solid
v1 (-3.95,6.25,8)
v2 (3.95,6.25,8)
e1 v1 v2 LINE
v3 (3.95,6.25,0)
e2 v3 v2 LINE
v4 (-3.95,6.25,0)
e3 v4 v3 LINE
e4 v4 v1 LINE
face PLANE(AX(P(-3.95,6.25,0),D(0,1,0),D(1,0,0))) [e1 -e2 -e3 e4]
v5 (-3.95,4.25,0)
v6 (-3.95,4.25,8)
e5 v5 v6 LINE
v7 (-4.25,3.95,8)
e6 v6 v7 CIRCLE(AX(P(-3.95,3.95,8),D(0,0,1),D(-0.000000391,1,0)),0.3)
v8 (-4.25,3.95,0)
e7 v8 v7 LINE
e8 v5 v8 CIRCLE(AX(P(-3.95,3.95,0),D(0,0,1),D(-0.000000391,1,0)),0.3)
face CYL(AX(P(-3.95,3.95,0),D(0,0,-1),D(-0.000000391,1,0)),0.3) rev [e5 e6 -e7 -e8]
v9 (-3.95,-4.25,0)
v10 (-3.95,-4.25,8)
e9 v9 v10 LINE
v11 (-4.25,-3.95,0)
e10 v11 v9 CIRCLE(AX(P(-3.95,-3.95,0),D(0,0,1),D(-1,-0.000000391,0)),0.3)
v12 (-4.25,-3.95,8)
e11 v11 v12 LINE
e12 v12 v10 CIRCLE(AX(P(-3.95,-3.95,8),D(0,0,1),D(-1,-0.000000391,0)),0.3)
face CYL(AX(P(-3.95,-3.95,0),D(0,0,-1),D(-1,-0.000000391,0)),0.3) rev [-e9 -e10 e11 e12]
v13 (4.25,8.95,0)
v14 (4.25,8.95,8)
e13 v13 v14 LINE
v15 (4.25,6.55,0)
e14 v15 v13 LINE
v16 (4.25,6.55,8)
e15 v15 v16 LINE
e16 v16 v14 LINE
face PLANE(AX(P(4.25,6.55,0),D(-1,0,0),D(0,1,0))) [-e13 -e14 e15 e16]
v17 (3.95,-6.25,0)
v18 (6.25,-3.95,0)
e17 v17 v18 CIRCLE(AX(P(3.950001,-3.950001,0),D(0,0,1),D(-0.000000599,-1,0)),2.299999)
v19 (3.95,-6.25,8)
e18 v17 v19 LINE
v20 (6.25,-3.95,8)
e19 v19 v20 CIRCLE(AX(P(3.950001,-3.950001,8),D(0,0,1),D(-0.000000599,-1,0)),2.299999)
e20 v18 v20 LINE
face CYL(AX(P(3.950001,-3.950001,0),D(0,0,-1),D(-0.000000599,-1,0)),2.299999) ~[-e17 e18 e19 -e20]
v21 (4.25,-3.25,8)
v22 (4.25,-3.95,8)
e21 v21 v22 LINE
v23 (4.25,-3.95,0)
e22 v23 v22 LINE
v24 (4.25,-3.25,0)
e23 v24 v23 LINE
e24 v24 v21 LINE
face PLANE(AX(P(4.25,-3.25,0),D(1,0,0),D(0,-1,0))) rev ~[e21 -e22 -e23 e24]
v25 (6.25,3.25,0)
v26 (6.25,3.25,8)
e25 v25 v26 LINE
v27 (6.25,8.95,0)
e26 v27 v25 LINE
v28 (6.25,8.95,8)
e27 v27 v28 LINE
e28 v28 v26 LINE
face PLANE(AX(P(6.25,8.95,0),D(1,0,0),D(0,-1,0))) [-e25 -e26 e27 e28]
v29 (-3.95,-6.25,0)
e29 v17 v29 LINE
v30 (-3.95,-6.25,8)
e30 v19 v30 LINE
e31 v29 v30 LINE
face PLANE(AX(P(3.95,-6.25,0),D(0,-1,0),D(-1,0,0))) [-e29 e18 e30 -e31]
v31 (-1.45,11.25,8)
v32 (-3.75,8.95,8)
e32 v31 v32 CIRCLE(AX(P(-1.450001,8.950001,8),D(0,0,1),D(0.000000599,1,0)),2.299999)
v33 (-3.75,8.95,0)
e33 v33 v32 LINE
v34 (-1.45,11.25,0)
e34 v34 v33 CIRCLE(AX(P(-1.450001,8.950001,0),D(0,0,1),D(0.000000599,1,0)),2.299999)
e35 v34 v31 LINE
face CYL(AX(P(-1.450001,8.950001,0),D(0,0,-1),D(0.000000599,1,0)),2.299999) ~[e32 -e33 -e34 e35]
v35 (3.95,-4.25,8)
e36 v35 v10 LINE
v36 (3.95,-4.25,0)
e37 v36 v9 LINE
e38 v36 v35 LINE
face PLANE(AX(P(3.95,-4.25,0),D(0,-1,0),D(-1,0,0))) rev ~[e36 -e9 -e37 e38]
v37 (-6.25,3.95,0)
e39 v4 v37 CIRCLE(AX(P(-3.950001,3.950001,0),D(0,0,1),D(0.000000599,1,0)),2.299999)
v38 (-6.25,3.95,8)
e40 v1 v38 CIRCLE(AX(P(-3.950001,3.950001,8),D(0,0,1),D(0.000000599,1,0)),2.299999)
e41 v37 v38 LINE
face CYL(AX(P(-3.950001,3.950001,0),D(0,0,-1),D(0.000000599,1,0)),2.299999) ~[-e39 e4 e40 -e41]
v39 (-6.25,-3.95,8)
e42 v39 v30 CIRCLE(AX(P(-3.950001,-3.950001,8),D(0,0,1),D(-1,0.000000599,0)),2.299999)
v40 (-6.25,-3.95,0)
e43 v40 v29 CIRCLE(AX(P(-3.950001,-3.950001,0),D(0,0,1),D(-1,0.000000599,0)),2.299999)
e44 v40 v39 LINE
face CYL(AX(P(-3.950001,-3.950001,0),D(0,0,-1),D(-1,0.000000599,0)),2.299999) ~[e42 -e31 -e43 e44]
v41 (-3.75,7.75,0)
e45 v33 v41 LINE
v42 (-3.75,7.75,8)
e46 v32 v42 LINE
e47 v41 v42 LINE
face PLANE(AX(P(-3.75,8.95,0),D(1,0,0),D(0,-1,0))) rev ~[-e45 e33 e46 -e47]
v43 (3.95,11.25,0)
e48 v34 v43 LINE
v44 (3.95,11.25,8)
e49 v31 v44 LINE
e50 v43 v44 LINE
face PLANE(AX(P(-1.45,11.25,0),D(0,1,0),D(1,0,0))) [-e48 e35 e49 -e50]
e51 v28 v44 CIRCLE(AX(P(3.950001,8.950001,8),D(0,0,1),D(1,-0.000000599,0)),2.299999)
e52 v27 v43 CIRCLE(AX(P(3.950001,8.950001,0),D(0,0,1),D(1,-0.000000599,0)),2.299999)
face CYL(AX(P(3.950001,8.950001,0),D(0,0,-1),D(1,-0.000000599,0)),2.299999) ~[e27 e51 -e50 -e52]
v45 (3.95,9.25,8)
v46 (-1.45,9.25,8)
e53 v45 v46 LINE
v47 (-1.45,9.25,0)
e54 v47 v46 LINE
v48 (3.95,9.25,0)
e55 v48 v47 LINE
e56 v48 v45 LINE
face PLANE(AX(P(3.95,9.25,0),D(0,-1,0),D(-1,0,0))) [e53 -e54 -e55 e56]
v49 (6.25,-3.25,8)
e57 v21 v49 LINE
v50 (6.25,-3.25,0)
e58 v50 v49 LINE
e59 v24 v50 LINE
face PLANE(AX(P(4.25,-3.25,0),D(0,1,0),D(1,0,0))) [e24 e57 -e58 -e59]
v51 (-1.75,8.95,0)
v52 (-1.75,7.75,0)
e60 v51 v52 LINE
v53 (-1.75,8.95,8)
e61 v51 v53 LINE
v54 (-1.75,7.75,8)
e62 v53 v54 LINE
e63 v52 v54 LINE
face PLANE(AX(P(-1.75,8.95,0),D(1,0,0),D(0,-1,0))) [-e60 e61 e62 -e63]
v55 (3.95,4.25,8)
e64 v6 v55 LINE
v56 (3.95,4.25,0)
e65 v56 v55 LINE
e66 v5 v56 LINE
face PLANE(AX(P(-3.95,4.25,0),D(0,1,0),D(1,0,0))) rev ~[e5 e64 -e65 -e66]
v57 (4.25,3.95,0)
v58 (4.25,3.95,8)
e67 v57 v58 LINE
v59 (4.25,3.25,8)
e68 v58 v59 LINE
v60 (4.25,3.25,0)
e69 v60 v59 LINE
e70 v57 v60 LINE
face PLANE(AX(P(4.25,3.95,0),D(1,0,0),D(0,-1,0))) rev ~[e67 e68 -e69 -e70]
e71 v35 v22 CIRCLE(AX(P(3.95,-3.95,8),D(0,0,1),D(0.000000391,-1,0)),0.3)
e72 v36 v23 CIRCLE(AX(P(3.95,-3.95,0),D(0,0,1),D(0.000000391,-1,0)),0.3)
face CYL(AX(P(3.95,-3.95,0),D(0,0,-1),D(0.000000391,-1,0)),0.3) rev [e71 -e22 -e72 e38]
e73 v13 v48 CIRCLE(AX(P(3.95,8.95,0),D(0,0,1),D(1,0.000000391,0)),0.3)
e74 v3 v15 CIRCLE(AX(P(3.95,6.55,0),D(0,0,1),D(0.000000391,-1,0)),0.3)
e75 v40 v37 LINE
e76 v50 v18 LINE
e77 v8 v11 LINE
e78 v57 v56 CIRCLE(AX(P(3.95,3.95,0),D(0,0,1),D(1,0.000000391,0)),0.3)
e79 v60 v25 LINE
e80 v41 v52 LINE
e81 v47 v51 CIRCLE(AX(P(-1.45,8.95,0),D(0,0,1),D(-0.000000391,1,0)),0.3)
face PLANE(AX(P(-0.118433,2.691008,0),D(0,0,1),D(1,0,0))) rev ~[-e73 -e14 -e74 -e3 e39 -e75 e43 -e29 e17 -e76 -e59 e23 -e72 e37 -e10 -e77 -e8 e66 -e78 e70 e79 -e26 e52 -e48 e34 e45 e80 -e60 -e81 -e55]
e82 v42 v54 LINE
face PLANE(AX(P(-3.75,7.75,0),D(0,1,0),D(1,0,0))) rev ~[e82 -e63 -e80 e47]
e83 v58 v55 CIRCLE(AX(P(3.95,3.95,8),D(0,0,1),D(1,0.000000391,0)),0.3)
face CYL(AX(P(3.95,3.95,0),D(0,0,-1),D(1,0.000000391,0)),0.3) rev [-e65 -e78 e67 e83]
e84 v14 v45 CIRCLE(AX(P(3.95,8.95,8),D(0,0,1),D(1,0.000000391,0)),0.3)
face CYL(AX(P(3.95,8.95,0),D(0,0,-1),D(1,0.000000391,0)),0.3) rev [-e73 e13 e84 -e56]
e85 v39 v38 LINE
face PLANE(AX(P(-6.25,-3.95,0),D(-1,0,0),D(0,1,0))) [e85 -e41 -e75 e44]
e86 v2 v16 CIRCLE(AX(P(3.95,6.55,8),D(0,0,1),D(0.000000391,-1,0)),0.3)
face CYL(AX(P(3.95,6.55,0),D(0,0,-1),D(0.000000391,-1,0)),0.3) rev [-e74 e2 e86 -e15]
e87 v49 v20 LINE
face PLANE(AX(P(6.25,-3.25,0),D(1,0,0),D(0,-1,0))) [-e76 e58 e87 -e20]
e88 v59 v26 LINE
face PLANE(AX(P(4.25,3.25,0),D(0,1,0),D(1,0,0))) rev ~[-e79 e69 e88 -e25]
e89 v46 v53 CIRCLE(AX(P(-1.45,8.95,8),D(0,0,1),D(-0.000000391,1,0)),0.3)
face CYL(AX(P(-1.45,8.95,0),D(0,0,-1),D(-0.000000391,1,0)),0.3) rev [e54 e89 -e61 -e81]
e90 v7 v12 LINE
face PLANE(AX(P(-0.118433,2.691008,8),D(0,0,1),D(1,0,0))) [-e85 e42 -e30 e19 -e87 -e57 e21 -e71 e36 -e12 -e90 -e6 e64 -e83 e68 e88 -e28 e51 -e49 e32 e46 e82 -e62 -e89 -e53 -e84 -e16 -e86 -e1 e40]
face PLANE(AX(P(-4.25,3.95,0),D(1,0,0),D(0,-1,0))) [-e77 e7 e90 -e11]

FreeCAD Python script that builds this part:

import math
import FreeCAD as App
import Part
import Sketcher

V = App.Vector
Q = App.Units.Quantity

doc = App.newDocument("Part")
params = doc.addObject("Spreadsheet::Sheet", "Params")
for row, (alias, value) in enumerate([
    ("sketch1_radius", "0.3 mm"),
    ("sketch1_radius2", "2.299999 mm"),
    ("sketch1_width", "7.9 mm"),
    ("sketch1_width2", "5.4 mm"),
    ("sketch1_height", "0.7 mm"),
    ("pad1_length", "8 mm"),
], start=1):
    params.set(f"A{row}", alias)
    params.set(f"B{row}", "=" + value)
    params.setAlias(f"B{row}", alias)

body = doc.addObject("PartDesign::Body", "Body")

sketch1 = body.newObject("Sketcher::SketchObject", "Sketch")
sketch1.AttachmentSupport = (doc.getObject("XY_Plane"), [""])
sketch1.MapMode = "FlatFace"
sketch1.addGeometry([
    Part.LineSegment(V(4.25, -3.25, 0), V(4.25, -3.95, 0)),
    Part.ArcOfCircle(Part.Circle(V(3.95, -3.95, 0), V(0, 0, 1), 0.3), math.radians(-89.999978), math.radians(-0.000022)),
    Part.LineSegment(V(3.95, -4.25, 0), V(-3.95, -4.25, 0)),
    Part.ArcOfCircle(Part.Circle(V(-3.95, -3.95, 0), V(0, 0, 1), 0.3), math.radians(-179.999978), math.radians(-90.000022)),
    Part.LineSegment(V(-4.25, -3.95, 0), V(-4.25, 3.95, 0)),
    Part.ArcOfCircle(Part.Circle(V(-3.95, 3.95, 0), V(0, 0, 1), 0.3), math.radians(90.000022), math.radians(179.999978)),
    Part.LineSegment(V(-3.95, 4.25, 0), V(3.95, 4.25, 0)),
    Part.ArcOfCircle(Part.Circle(V(3.95, 3.95, 0), V(0, 0, 1), 0.3), math.radians(0.000022), math.radians(89.999978)),
    Part.LineSegment(V(4.25, 3.95, 0), V(4.25, 3.25, 0)),
    Part.LineSegment(V(4.25, 3.25, 0), V(6.25, 3.25, 0)),
    Part.LineSegment(V(6.25, 3.25, 0), V(6.25, 8.95, 0)),
    Part.ArcOfCircle(Part.Circle(V(3.950001, 8.950001, 0), V(0, 0, 1), 2.299999), math.radians(-0.000034), math.radians(90.000034)),
    Part.LineSegment(V(3.95, 11.25, 0), V(-1.45, 11.25, 0)),
    Part.ArcOfCircle(Part.Circle(V(-1.450001, 8.950001, 0), V(0, 0, 1), 2.299999), math.radians(89.999966), math.radians(180.000034)),
    Part.LineSegment(V(-3.75, 8.95, 0), V(-3.75, 7.75, 0)),
    Part.LineSegment(V(-3.75, 7.75, 0), V(-1.75, 7.75, 0)),
    Part.LineSegment(V(-1.75, 7.75, 0), V(-1.75, 8.95, 0)),
    Part.ArcOfCircle(Part.Circle(V(-1.45, 8.95, 0), V(0, 0, 1), 0.3), math.radians(90.000022), math.radians(179.999978)),
    Part.LineSegment(V(-1.45, 9.25, 0), V(3.95, 9.25, 0)),
    Part.ArcOfCircle(Part.Circle(V(3.95, 8.95, 0), V(0, 0, 1), 0.3), math.radians(0.000022), math.radians(89.999978)),
    Part.LineSegment(V(4.25, 8.95, 0), V(4.25, 6.55, 0)),
    Part.ArcOfCircle(Part.Circle(V(3.95, 6.55, 0), V(0, 0, 1), 0.3), math.radians(-89.999978), math.radians(-0.000022)),
    Part.LineSegment(V(3.95, 6.25, 0), V(-3.95, 6.25, 0)),
    Part.ArcOfCircle(Part.Circle(V(-3.950001, 3.950001, 0), V(0, 0, 1), 2.299999), math.radians(89.999966), math.radians(180.000034)),
    Part.LineSegment(V(-6.25, 3.95, 0), V(-6.25, -3.95, 0)),
    Part.ArcOfCircle(Part.Circle(V(-3.950001, -3.950001, 0), V(0, 0, 1), 2.299999), math.radians(179.999966), math.radians(270.000034)),
    Part.LineSegment(V(-3.95, -6.25, 0), V(3.95, -6.25, 0)),
    Part.ArcOfCircle(Part.Circle(V(3.950001, -3.950001, 0), V(0, 0, 1), 2.299999), math.radians(-90.000034), math.radians(0.000034)),
    Part.LineSegment(V(6.25, -3.95, 0), V(6.25, -3.25, 0)),
    Part.LineSegment(V(6.25, -3.25, 0), V(4.25, -3.25, 0)),
], False)
sketch1.addConstraint([
    Sketcher.Constraint("Tangent", 0, 2, 1, 2),
    Sketcher.Constraint("Tangent", 1, 1, 2, 1),
    Sketcher.Constraint("Tangent", 2, 2, 3, 2),
    Sketcher.Constraint("Tangent", 3, 1, 4, 1),
    Sketcher.Constraint("Tangent", 4, 2, 5, 2),
    Sketcher.Constraint("Tangent", 5, 1, 6, 1),
    Sketcher.Constraint("Tangent", 6, 2, 7, 2),
    Sketcher.Constraint("Tangent", 7, 1, 8, 1),
    Sketcher.Constraint("Coincident", 8, 2, 9, 1),
    Sketcher.Constraint("Coincident", 9, 2, 10, 1),
    Sketcher.Constraint("Tangent", 10, 2, 11, 1),
    Sketcher.Constraint("Tangent", 11, 2, 12, 1),
    Sketcher.Constraint("Tangent", 12, 2, 13, 1),
    Sketcher.Constraint("Tangent", 13, 2, 14, 1),
    Sketcher.Constraint("Coincident", 14, 2, 15, 1),
    Sketcher.Constraint("Coincident", 15, 2, 16, 1),
    Sketcher.Constraint("Tangent", 16, 2, 17, 2),
    Sketcher.Constraint("Tangent", 17, 1, 18, 1),
    Sketcher.Constraint("Tangent", 18, 2, 19, 2),
    Sketcher.Constraint("Tangent", 19, 1, 20, 1),
    Sketcher.Constraint("Tangent", 20, 2, 21, 2),
    Sketcher.Constraint("Tangent", 21, 1, 22, 1),
    Sketcher.Constraint("Tangent", 22, 2, 23, 1),
    Sketcher.Constraint("Tangent", 23, 2, 24, 1),
    Sketcher.Constraint("Tangent", 24, 2, 25, 1),
    Sketcher.Constraint("Tangent", 25, 2, 26, 1),
    Sketcher.Constraint("Tangent", 26, 2, 27, 1),
    Sketcher.Constraint("Tangent", 27, 2, 28, 1),
    Sketcher.Constraint("Coincident", 28, 2, 29, 1),
    Sketcher.Constraint("Coincident", 29, 2, 0, 1),
    Sketcher.Constraint("Vertical", 0),
    Sketcher.Constraint("Horizontal", 2),
    Sketcher.Constraint("Vertical", 4),
    Sketcher.Constraint("Horizontal", 6),
    Sketcher.Constraint("Vertical", 8),
    Sketcher.Constraint("Horizontal", 9),
    Sketcher.Constraint("Vertical", 10),
    Sketcher.Constraint("Horizontal", 12),
    Sketcher.Constraint("Vertical", 14),
    Sketcher.Constraint("Horizontal", 15),
    Sketcher.Constraint("Vertical", 16),
    Sketcher.Constraint("Horizontal", 18),
    Sketcher.Constraint("Vertical", 20),
    Sketcher.Constraint("Horizontal", 22),
    Sketcher.Constraint("Vertical", 24),
    Sketcher.Constraint("Horizontal", 26),
    Sketcher.Constraint("Vertical", 28),
    Sketcher.Constraint("Horizontal", 29),
    Sketcher.Constraint("Coincident", 17, 3, 13, 3),
    Sketcher.Constraint("Coincident", 19, 3, 11, 3),
    Sketcher.Constraint("Coincident", 23, 3, 5, 3),
    Sketcher.Constraint("Coincident", 25, 3, 3, 3),
    Sketcher.Constraint("Coincident", 27, 3, 1, 3),
    Sketcher.Constraint("Equal", 1, 3),
    Sketcher.Constraint("Equal", 3, 5),
    Sketcher.Constraint("Equal", 5, 7),
    Sketcher.Constraint("Equal", 11, 13),
    Sketcher.Constraint("Equal", 7, 17),
    Sketcher.Constraint("Equal", 19, 21),
    Sketcher.Constraint("Equal", 13, 23),
    Sketcher.Constraint("Symmetric", 1, 3, 5, 3, -1, 1),
    Sketcher.Constraint("Symmetric", 9, 2, 28, 2, -1),
    Sketcher.Constraint("Vertical", 1, 3, 7, 3),
    Sketcher.Constraint("Equal", 26, 4),
    Sketcher.Constraint("Radius", 1, Q("0.3 mm")),
    Sketcher.Constraint("Radius", 11, Q("2.299999 mm")),
    Sketcher.Constraint("DistanceX", 2, 2, 2, 1, Q("7.9 mm")),
    Sketcher.Constraint("DistanceX", 12, 2, 12, 1, Q("5.4 mm")),
    Sketcher.Constraint("DistanceY", 0, 2, 0, 1, Q("0.7 mm")),
    Sketcher.Constraint("DistanceY", 10, 1, 10, 2, Q("5.7 mm")),
    Sketcher.Constraint("DistanceY", 14, 2, 14, 1, Q("1.2 mm")),
])
sketch1.setExpression("Constraints[64]", "Params.sketch1_radius")
sketch1.setExpression("Constraints[65]", "Params.sketch1_radius2")
sketch1.setExpression("Constraints[66]", "Params.sketch1_width")
sketch1.setExpression("Constraints[67]", "Params.sketch1_width2")
sketch1.setExpression("Constraints[68]", "Params.sketch1_height")
pad1 = body.newObject("PartDesign::Pad", "Pad")
pad1.Profile = sketch1
pad1.setExpression("Length", "Params.pad1_length")

doc.recompute()
